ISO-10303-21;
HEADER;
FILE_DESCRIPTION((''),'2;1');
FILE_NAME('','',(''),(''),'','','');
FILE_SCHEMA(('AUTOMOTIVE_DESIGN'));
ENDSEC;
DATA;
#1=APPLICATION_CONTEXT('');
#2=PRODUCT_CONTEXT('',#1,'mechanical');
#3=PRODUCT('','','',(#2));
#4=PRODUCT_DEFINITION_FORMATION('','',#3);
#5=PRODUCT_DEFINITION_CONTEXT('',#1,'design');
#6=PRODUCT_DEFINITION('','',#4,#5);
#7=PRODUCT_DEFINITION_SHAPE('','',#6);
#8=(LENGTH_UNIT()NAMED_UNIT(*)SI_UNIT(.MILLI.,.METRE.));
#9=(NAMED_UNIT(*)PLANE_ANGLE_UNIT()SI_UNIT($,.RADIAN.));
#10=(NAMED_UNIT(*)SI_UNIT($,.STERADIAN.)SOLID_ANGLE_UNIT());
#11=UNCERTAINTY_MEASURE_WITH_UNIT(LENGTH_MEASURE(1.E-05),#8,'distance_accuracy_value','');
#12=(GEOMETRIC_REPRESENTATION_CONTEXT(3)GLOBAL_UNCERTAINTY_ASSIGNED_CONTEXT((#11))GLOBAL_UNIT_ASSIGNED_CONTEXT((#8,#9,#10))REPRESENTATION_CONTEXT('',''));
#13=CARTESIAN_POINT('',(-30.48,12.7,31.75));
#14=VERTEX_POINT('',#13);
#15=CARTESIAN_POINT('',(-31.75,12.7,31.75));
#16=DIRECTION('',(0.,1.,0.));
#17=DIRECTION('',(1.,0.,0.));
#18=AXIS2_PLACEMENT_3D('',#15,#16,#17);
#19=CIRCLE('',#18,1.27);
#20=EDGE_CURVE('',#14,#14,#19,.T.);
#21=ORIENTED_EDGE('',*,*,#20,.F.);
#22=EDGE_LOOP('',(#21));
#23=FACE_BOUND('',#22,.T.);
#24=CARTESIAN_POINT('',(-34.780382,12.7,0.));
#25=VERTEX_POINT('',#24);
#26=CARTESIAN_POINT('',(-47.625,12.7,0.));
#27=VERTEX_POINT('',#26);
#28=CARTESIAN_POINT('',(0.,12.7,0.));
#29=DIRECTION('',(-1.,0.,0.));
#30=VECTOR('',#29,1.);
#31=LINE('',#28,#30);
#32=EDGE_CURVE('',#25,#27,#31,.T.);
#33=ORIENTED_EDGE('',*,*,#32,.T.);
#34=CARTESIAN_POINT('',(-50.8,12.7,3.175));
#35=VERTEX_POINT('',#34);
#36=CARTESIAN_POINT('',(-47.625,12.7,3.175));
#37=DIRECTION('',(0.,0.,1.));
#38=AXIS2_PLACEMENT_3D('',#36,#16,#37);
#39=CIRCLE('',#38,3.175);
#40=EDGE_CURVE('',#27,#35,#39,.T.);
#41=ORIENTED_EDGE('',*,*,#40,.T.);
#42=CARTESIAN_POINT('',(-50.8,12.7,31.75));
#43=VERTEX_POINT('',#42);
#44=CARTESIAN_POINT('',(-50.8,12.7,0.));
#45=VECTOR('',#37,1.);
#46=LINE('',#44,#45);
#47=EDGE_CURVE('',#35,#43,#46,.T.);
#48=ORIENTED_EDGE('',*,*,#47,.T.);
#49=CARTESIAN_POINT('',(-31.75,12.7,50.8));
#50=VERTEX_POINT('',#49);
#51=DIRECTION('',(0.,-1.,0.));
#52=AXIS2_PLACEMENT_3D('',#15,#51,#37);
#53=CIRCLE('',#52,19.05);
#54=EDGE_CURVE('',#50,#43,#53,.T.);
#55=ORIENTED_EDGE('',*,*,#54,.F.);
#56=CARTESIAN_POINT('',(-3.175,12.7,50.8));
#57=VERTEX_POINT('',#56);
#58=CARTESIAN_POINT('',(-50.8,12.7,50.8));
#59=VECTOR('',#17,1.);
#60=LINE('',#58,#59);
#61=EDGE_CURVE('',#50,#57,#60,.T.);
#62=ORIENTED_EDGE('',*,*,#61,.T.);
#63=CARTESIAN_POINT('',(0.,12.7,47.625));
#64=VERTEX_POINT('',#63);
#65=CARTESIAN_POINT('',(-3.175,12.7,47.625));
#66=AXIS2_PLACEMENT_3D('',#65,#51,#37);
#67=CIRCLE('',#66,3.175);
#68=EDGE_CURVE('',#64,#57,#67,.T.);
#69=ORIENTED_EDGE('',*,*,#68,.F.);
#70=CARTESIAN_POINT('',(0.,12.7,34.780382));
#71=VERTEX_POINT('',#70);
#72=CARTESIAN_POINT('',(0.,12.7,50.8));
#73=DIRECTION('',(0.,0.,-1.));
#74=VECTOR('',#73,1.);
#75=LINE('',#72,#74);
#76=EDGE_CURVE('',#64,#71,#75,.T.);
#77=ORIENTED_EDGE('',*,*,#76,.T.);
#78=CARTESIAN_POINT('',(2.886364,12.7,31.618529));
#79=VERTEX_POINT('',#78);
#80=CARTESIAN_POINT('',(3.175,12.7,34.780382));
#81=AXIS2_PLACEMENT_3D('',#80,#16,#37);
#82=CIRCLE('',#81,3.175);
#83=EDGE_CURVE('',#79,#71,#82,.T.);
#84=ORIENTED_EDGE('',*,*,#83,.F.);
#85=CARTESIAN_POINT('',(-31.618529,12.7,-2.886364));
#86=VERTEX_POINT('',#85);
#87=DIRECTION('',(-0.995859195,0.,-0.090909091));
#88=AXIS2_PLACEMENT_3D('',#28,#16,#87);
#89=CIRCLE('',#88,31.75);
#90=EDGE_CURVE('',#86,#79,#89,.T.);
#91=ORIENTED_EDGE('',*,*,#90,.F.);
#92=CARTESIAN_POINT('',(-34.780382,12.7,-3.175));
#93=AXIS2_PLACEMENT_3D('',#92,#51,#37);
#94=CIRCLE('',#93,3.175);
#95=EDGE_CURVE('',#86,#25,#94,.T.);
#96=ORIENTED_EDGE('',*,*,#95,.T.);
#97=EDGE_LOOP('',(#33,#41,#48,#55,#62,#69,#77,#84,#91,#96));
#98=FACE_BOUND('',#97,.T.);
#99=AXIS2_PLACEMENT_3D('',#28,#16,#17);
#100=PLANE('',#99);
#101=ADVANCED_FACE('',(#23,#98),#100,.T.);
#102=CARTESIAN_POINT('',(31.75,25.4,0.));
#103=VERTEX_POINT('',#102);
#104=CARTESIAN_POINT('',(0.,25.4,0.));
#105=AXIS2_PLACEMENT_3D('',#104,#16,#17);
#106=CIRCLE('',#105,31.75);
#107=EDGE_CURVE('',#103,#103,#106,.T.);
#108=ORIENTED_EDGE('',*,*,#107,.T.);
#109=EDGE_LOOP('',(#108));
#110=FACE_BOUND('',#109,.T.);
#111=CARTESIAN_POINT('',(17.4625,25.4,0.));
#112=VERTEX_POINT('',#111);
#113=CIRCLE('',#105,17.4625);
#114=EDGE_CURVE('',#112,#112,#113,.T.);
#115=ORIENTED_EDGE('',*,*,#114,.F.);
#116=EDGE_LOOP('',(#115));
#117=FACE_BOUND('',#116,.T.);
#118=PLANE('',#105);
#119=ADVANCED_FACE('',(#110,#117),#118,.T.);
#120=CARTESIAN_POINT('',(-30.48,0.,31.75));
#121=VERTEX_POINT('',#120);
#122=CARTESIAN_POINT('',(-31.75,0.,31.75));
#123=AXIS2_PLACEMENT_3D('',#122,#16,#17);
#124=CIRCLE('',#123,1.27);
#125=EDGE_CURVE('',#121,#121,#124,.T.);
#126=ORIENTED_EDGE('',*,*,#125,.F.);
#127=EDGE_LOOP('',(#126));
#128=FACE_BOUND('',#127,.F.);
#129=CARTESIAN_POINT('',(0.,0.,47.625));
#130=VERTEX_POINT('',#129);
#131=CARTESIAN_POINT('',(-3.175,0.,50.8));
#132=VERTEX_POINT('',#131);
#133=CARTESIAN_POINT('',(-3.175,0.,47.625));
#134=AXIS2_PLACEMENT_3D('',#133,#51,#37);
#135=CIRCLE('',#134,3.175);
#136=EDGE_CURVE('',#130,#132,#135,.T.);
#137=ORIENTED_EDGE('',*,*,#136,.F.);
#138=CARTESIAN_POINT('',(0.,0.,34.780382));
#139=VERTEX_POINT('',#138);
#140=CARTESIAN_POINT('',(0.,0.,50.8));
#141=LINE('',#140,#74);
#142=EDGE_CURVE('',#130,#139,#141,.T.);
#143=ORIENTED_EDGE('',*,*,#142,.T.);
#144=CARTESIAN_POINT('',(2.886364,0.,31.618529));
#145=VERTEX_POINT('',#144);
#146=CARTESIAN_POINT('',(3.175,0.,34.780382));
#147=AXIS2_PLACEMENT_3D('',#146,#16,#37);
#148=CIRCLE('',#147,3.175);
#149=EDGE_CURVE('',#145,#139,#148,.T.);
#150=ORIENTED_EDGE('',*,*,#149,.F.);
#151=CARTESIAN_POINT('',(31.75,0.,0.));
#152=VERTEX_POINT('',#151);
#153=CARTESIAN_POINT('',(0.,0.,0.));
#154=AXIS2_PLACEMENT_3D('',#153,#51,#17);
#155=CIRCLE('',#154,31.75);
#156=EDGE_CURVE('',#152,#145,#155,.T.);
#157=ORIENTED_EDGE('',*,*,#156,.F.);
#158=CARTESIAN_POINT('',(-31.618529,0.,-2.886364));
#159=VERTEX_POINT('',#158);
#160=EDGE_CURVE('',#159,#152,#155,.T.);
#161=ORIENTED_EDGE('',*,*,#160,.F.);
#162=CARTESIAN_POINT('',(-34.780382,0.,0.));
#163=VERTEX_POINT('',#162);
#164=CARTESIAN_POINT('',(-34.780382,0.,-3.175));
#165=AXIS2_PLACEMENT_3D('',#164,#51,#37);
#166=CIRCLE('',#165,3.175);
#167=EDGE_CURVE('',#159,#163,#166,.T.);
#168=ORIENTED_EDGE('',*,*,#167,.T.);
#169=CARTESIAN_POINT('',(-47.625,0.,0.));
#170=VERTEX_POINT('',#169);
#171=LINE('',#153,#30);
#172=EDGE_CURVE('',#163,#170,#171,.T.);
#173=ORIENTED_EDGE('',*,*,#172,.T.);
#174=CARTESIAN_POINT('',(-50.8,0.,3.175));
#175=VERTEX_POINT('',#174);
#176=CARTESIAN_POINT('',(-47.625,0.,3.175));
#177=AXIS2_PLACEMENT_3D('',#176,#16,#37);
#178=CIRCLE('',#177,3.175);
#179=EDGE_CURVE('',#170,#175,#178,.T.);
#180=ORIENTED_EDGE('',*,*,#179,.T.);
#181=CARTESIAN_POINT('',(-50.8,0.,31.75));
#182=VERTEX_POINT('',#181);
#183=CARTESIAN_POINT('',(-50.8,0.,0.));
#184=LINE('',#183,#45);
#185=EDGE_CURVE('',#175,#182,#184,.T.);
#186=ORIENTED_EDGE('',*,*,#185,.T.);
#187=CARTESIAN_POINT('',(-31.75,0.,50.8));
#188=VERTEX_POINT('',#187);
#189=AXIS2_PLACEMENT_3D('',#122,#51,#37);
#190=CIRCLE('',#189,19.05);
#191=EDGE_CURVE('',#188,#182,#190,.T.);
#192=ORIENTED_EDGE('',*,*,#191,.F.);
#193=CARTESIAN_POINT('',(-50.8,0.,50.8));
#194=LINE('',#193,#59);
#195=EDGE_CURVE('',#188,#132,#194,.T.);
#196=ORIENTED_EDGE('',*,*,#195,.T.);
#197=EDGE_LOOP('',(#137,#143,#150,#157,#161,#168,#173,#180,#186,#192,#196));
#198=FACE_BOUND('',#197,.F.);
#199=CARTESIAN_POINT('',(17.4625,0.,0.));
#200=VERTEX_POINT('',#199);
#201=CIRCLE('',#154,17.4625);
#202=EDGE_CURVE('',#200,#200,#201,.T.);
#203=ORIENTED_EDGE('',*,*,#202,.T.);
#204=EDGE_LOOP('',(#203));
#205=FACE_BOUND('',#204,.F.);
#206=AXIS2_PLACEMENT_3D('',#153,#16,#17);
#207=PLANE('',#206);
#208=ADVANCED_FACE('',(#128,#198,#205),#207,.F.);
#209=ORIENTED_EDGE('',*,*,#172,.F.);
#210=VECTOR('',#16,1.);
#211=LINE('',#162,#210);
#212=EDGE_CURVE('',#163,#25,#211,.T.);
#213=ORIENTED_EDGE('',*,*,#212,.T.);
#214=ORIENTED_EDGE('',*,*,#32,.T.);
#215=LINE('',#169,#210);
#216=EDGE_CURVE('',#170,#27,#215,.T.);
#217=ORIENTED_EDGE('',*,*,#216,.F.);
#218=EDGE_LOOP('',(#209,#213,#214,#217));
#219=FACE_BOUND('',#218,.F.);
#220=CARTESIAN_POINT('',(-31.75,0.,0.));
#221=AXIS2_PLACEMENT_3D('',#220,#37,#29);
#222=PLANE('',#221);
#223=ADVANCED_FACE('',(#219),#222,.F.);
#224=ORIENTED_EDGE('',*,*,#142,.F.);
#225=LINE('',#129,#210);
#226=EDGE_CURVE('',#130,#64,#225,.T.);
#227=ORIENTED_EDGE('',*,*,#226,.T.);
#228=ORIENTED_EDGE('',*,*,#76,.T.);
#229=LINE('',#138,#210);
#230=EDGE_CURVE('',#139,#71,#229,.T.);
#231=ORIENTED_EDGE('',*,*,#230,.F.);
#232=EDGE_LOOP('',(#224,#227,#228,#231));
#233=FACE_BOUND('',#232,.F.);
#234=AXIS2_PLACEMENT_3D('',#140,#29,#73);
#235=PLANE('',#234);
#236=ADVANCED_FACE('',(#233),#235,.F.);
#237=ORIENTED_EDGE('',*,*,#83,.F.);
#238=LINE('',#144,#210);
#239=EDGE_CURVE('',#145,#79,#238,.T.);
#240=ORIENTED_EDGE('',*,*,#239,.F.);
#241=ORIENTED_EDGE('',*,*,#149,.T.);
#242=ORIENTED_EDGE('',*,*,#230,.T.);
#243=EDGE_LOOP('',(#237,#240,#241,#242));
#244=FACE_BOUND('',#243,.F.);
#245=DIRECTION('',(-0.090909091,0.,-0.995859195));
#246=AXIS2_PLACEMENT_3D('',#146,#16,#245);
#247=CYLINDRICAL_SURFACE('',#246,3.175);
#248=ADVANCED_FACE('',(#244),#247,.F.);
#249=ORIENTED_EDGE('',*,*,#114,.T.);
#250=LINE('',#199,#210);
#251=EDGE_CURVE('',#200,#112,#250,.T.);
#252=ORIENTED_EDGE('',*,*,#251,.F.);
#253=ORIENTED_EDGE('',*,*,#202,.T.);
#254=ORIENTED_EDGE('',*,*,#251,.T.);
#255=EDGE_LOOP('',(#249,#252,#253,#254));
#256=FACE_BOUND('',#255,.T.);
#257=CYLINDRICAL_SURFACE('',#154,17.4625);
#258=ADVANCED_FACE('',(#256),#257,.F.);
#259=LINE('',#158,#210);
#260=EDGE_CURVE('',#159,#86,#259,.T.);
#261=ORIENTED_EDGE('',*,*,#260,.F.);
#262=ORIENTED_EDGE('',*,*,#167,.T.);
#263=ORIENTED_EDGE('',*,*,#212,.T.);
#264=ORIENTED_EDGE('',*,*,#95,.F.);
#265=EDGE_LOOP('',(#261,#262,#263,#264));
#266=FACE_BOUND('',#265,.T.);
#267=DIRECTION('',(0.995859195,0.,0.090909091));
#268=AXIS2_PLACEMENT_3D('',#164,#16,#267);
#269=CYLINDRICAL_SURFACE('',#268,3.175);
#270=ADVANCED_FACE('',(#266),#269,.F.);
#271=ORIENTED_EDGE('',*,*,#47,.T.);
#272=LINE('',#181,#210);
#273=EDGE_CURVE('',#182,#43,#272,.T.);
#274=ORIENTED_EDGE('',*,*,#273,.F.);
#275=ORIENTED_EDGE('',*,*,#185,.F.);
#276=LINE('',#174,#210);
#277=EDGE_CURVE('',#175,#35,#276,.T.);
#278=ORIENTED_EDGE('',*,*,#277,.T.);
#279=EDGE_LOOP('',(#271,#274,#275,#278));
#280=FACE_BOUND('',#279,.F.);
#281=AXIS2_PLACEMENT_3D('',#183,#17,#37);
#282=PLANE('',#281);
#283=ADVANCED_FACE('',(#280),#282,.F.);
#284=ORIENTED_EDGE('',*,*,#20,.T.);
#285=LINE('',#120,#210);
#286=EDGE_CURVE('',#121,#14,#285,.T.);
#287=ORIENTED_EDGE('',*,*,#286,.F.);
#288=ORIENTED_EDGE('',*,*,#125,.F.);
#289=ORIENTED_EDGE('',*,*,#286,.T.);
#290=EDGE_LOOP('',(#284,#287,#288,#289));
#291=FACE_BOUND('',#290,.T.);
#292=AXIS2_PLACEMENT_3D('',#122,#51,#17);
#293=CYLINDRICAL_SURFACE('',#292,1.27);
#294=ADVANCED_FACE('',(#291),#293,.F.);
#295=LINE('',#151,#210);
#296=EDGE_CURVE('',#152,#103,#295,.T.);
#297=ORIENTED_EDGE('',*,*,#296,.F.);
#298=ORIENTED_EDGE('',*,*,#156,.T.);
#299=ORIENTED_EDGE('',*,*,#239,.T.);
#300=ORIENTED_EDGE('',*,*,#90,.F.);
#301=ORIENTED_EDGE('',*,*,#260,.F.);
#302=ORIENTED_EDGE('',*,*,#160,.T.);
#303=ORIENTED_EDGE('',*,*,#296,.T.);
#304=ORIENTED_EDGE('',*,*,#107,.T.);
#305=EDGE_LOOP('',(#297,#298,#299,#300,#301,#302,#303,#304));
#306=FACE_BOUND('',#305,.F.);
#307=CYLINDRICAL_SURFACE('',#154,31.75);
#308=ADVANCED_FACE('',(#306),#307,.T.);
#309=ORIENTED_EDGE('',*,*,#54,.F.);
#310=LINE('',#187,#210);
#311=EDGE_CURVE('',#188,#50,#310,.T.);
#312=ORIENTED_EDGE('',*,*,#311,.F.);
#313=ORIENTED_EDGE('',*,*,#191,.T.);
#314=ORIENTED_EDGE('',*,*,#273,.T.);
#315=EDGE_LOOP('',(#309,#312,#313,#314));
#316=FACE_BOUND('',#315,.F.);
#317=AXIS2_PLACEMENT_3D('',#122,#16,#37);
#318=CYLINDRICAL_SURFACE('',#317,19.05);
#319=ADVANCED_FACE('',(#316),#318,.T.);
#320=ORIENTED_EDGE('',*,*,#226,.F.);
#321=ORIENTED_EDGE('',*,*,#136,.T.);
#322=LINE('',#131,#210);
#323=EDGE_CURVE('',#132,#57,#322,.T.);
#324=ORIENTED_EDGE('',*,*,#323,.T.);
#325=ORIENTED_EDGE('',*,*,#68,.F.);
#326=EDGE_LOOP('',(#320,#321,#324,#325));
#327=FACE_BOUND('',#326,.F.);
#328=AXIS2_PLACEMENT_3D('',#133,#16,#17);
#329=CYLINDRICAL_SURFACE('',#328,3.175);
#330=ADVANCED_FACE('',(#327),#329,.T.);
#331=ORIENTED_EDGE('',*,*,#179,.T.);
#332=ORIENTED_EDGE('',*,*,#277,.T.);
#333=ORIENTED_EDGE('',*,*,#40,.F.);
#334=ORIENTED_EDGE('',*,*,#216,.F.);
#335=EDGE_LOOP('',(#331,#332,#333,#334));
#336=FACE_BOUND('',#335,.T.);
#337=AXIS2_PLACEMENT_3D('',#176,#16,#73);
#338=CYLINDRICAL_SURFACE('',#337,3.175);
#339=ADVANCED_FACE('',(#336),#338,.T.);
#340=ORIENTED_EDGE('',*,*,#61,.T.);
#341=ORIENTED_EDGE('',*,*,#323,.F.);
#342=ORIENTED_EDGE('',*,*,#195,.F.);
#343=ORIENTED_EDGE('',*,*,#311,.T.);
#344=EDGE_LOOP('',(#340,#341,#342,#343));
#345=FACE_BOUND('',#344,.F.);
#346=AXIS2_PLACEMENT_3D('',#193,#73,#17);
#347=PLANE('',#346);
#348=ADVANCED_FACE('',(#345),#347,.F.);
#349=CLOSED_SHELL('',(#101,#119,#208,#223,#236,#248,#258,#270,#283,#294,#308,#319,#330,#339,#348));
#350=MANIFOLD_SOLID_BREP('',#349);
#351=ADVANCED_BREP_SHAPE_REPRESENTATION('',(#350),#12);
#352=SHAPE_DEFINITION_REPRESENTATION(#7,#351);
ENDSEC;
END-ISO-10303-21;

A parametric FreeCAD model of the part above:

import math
import FreeCAD as App
import Part
import Sketcher
from FreeCAD import Vector
Q = App.Units.Quantity


def edges_at(feature, points):
    """Names of the edges that pass closest to the given points."""
    edges = feature.Shape.Edges
    near = lambda p: min(range(len(edges)), key=lambda i: edges[i].distToShape(Part.Vertex(*p))[0])
    return sorted({f"Edge{near(p) + 1}" for p in points})

doc = App.newDocument("Part")
body = doc.addObject("PartDesign::Body", "Body")

sketch1 = body.newObject("Sketcher::SketchObject", "Sketch")
sketch1.AttachmentSupport = (doc.getObject("XZ_Plane"), [""])
sketch1.MapMode = "FlatFace"
sketch1.addGeometry(Part.Circle(Vector(0, 0, 0), Vector(0, 0, 1), 32), False)
sketch1.addGeometry(Part.Circle(Vector(0, 0, 0), Vector(0, 0, 1), 17), False)
sketch1.addConstraint(Sketcher.Constraint("Coincident", 0, 3, -1, 1))
sketch1.addConstraint(Sketcher.Constraint("Coincident", 1, 3, -1, 1))
sketch1.addConstraint(Sketcher.Constraint("Diameter", 0, Q("2.5 in")))
sketch1.addConstraint(Sketcher.Constraint("Diameter", 1, Q("1.375 in")))
pad1 = body.newObject("PartDesign::Pad", "Pad")
pad1.Profile = sketch1
pad1.Length = Q("1 in")
pad1.Reversed = True

sketch2 = body.newObject("Sketcher::SketchObject", "Sketch001")
sketch2.AttachmentSupport = (doc.getObject("XZ_Plane"), [""])
sketch2.MapMode = "FlatFace"
sketch2.addGeometry(Part.ArcOfCircle(Part.Circle(Vector(0, 0, 0), Vector(0, 0, 1), 31.8), math.radians(90), math.radians(180)), False)
sketch2.addGeometry(Part.LineSegment(Vector(-31.8, 0, 0), Vector(-50.8, 0, 0)), False)
sketch2.addGeometry(Part.LineSegment(Vector(-50.8, 0, 0), Vector(-50.8, 50.8, 0)), False)
sketch2.addGeometry(Part.LineSegment(Vector(-50.8, 50.8, 0), Vector(0, 50.8, 0)), False)
sketch2.addGeometry(Part.LineSegment(Vector(0, 50.8, 0), Vector(0, 31.8, 0)), False)
sketch2.addGeometry(Part.Circle(Vector(-31.8, 31.8, 0), Vector(0, 0, 1), 1.3), False)
sketch2.addConstraint(Sketcher.Constraint("Coincident", 0, 2, 1, 1))
sketch2.addConstraint(Sketcher.Constraint("Coincident", 1, 2, 2, 1))
sketch2.addConstraint(Sketcher.Constraint("Coincident", 2, 2, 3, 1))
sketch2.addConstraint(Sketcher.Constraint("Coincident", 3, 2, 4, 1))
sketch2.addConstraint(Sketcher.Constraint("Coincident", 4, 2, 0, 1))
sketch2.addConstraint(Sketcher.Constraint("Horizontal", 1))
sketch2.addConstraint(Sketcher.Constraint("Vertical", 2))
sketch2.addConstraint(Sketcher.Constraint("Horizontal", 3))
sketch2.addConstraint(Sketcher.Constraint("Vertical", 4))
sketch2.addConstraint(Sketcher.Constraint("Coincident", 0, 3, -1, 1))
sketch2.addConstraint(Sketcher.Constraint("PointOnObject", 0, 2, -1))
sketch2.addConstraint(Sketcher.Constraint("PointOnObject", 3, 2, -2))
sketch2.addConstraint(Sketcher.Constraint("Horizontal", 5, 3, 4, 2))
sketch2.addConstraint(Sketcher.Constraint("Vertical", 5, 3, 0, 2))
sketch2.addConstraint(Sketcher.Constraint("Equal", 3, 2))
sketch2.addConstraint(Sketcher.Constraint("Diameter", 5, Q("0.1 in")))
sketch2.addConstraint(Sketcher.Constraint("DistanceX", 3, 1, 3, 2, Q("2 in")))
sketch2.addConstraint(Sketcher.Constraint("Radius", 0, Q("1.25 in")))
pad2 = body.newObject("PartDesign::Pad", "Pad001")
pad2.Profile = sketch2
pad2.Length = Q("0.5 in")
pad2.Reversed = True
doc.recompute()

fillet = body.newObject("PartDesign::Fillet", "Fillet")
fillet.Base = (pad2, edges_at(pad2, [(-50.8, 6.35, 50.8)]))
fillet.Radius = Q("0.75 in")
doc.recompute()

fillet2 = body.newObject("PartDesign::Fillet", "Fillet001")
fillet2.Base = (fillet, edges_at(fillet, [
    (0, 6.35, 50.8),
    (0, 6.35, 31.75),
    (-50.8, 6.35, 0),
    (-31.75, 6.35, 0),
]))
fillet2.Radius = Q("0.125 in")

sketch3 = body.newObject("Sketcher::SketchObject", "Sketch002")
sketch3.AttachmentSupport = (doc.getObject("XZ_Plane"), [""])
sketch3.MapMode = "FlatFace"
sketch3.addGeometry(Part.Circle(Vector(-32, 32, 0), Vector(0, 0, 1), 6), False)
sketch3.addConstraint(Sketcher.Constraint("Diameter", 0, Q("0.5 in")))
sketch3.addConstraint(Sketcher.Constraint("DistanceX", 0, 3, -1, 1, Q("1.25 in")))
sketch3.addConstraint(Sketcher.Constraint("DistanceY", -1, 1, 0, 3, Q("1.25 in")))
doc.recompute()
hole = body.newObject("PartDesign::Hole", "Hole")
hole.Profile = sketch3
hole.ThreadType = "None"
hole.Diameter = Q("0.5 in")
hole.DepthType = "Dimension"
hole.Depth = Q("1 in")
hole.DrillPoint = "Angled"
hole.DrillPointAngle = 118
hole.HoleCutType = "Counterbore"
hole.HoleCutDiameter = Q("1 in")
hole.HoleCutDepth = Q("0.25 in")
hole.Reversed = True

doc.recompute()
